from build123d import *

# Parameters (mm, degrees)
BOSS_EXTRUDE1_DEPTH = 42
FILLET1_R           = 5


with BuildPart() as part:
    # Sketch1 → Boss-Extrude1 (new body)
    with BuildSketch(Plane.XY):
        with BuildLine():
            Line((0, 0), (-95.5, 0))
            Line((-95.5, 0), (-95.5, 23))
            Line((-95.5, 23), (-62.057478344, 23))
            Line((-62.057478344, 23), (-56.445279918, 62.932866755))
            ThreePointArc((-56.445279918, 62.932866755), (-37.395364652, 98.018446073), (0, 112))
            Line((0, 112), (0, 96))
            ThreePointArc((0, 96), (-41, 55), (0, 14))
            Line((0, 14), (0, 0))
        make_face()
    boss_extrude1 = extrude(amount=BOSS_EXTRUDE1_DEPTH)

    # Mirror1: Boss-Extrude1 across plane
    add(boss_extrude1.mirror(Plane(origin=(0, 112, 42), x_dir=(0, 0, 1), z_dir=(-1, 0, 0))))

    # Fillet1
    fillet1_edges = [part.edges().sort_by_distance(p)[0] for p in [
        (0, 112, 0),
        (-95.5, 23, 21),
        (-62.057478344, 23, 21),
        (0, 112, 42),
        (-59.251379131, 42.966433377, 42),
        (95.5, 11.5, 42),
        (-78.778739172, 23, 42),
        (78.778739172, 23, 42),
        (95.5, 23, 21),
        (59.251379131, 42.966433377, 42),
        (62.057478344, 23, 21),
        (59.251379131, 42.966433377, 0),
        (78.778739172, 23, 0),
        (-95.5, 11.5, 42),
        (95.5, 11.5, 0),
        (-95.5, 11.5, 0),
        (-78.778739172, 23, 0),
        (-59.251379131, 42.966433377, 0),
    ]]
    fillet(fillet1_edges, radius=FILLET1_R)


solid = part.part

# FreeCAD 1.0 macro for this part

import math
import FreeCAD as App
import Part
import Sketcher
Q = App.Units.Quantity


def edges_at(feature, points):
    """Names of the edges that pass closest to the given points."""
    edges = feature.Shape.Edges
    near = lambda p: min(range(len(edges)), key=lambda i: edges[i].distToShape(Part.Vertex(*p))[0])
    return sorted({f"Edge{near(p) + 1}" for p in points})

doc = App.newDocument("Part")
body = doc.addObject("PartDesign::Body", "Body")

sketch1 = doc.addObject("Sketcher::SketchObject", "Sketch")
body.addObject(sketch1)
sketch1.AttachmentSupport = (doc.XY_Plane, [""])
sketch1.MapMode = "FlatFace"
sketch1.addGeometry([
    Part.LineSegment(App.Vector(-96, 0, 0), App.Vector(0, 0, 0)),
    Part.LineSegment(App.Vector(0, 0, 0), App.Vector(0, 14, 0)),
    Part.ArcOfCircle(Part.Circle(App.Vector(0, 55, 0), App.Vector(0, 0, 1), 41), math.radians(90), math.radians(270)),
    Part.LineSegment(App.Vector(0, 96, 0), App.Vector(0, 112, 0)),
    Part.ArcOfCircle(Part.Circle(App.Vector(0, 55, 0), App.Vector(0, 0, 1), 57), math.radians(90), math.radians(172)),
    Part.LineSegment(App.Vector(-56, 63, 0), App.Vector(-62, 23, 0)),
    Part.LineSegment(App.Vector(-62, 23, 0), App.Vector(-96, 23, 0)),
    Part.LineSegment(App.Vector(-96, 23, 0), App.Vector(-96, 0, 0)),
], False)
sketch1.addConstraint([
    Sketcher.Constraint("Coincident", 0, 2, 1, 1),
    Sketcher.Constraint("Coincident", 1, 2, 2, 2),
    Sketcher.Constraint("Coincident", 2, 1, 3, 1),
    Sketcher.Constraint("Coincident", 3, 2, 4, 1),
    Sketcher.Constraint("Tangent", 4, 2, 5, 1),
    Sketcher.Constraint("Coincident", 5, 2, 6, 1),
    Sketcher.Constraint("Coincident", 6, 2, 7, 1),
    Sketcher.Constraint("Coincident", 7, 2, 0, 1),
    Sketcher.Constraint("Horizontal", 0),
    Sketcher.Constraint("Vertical", 1),
    Sketcher.Constraint("Vertical", 3),
    Sketcher.Constraint("Horizontal", 6),
    Sketcher.Constraint("Vertical", 7),
    Sketcher.Constraint("Coincident", 0, 2, -1, 1),
    Sketcher.Constraint("Coincident", 4, 3, 2, 3),
    Sketcher.Constraint("PointOnObject", 2, 3, -2),
    Sketcher.Constraint("PointOnObject", 2, 1, -2),
    Sketcher.Constraint("Radius", 2, Q("41 mm")),
    Sketcher.Constraint("Radius", 4, Q("57 mm")),
    Sketcher.Constraint("DistanceY", 1, 1, 1, 2, Q("14 mm")),
    Sketcher.Constraint("DistanceY", 7, 2, 7, 1, Q("23 mm")),
    Sketcher.Constraint("Angle", 5, Q("-98 deg")),
    Sketcher.Constraint("DistanceX", 0, 1, 0, 2, Q("95.5 mm")),
])
pad1 = doc.addObject("PartDesign::Pad", "Pad")
body.addObject(pad1)
pad1.Profile = sketch1
pad1.Length = 42
doc.recompute()

mirrored = doc.addObject("PartDesign::Mirrored", "Mirrored")
body.addObject(mirrored)
mirrored.Originals = [pad1]
mirrored.MirrorPlane = (doc.YZ_Plane, [""])
body.Tip = mirrored
doc.recompute()

fillet = doc.addObject("PartDesign::Fillet", "Fillet")
body.addObject(fillet)
fillet.Base = (mirrored, edges_at(mirrored, [
    (0, 112, 0),
    (-95.5, 23, 21),
    (-62.057, 23, 21),
    (0, 112, 42),
    (-59.251, 42.966, 42),
    (95.5, 11.5, 42),
    (-78.779, 23, 42),
    (78.779, 23, 42),
    (95.5, 23, 21),
    (59.251, 42.966, 42),
    (62.057, 23, 21),
    (59.251, 42.966, 0),
    (78.779, 23, 0),
    (-95.5, 11.5, 42),
    (95.5, 11.5, 0),
    (-95.5, 11.5, 0),
    (-78.779, 23, 0),
    (-59.251, 42.966, 0),
]))
fillet.Radius = 5

doc.recompute()
